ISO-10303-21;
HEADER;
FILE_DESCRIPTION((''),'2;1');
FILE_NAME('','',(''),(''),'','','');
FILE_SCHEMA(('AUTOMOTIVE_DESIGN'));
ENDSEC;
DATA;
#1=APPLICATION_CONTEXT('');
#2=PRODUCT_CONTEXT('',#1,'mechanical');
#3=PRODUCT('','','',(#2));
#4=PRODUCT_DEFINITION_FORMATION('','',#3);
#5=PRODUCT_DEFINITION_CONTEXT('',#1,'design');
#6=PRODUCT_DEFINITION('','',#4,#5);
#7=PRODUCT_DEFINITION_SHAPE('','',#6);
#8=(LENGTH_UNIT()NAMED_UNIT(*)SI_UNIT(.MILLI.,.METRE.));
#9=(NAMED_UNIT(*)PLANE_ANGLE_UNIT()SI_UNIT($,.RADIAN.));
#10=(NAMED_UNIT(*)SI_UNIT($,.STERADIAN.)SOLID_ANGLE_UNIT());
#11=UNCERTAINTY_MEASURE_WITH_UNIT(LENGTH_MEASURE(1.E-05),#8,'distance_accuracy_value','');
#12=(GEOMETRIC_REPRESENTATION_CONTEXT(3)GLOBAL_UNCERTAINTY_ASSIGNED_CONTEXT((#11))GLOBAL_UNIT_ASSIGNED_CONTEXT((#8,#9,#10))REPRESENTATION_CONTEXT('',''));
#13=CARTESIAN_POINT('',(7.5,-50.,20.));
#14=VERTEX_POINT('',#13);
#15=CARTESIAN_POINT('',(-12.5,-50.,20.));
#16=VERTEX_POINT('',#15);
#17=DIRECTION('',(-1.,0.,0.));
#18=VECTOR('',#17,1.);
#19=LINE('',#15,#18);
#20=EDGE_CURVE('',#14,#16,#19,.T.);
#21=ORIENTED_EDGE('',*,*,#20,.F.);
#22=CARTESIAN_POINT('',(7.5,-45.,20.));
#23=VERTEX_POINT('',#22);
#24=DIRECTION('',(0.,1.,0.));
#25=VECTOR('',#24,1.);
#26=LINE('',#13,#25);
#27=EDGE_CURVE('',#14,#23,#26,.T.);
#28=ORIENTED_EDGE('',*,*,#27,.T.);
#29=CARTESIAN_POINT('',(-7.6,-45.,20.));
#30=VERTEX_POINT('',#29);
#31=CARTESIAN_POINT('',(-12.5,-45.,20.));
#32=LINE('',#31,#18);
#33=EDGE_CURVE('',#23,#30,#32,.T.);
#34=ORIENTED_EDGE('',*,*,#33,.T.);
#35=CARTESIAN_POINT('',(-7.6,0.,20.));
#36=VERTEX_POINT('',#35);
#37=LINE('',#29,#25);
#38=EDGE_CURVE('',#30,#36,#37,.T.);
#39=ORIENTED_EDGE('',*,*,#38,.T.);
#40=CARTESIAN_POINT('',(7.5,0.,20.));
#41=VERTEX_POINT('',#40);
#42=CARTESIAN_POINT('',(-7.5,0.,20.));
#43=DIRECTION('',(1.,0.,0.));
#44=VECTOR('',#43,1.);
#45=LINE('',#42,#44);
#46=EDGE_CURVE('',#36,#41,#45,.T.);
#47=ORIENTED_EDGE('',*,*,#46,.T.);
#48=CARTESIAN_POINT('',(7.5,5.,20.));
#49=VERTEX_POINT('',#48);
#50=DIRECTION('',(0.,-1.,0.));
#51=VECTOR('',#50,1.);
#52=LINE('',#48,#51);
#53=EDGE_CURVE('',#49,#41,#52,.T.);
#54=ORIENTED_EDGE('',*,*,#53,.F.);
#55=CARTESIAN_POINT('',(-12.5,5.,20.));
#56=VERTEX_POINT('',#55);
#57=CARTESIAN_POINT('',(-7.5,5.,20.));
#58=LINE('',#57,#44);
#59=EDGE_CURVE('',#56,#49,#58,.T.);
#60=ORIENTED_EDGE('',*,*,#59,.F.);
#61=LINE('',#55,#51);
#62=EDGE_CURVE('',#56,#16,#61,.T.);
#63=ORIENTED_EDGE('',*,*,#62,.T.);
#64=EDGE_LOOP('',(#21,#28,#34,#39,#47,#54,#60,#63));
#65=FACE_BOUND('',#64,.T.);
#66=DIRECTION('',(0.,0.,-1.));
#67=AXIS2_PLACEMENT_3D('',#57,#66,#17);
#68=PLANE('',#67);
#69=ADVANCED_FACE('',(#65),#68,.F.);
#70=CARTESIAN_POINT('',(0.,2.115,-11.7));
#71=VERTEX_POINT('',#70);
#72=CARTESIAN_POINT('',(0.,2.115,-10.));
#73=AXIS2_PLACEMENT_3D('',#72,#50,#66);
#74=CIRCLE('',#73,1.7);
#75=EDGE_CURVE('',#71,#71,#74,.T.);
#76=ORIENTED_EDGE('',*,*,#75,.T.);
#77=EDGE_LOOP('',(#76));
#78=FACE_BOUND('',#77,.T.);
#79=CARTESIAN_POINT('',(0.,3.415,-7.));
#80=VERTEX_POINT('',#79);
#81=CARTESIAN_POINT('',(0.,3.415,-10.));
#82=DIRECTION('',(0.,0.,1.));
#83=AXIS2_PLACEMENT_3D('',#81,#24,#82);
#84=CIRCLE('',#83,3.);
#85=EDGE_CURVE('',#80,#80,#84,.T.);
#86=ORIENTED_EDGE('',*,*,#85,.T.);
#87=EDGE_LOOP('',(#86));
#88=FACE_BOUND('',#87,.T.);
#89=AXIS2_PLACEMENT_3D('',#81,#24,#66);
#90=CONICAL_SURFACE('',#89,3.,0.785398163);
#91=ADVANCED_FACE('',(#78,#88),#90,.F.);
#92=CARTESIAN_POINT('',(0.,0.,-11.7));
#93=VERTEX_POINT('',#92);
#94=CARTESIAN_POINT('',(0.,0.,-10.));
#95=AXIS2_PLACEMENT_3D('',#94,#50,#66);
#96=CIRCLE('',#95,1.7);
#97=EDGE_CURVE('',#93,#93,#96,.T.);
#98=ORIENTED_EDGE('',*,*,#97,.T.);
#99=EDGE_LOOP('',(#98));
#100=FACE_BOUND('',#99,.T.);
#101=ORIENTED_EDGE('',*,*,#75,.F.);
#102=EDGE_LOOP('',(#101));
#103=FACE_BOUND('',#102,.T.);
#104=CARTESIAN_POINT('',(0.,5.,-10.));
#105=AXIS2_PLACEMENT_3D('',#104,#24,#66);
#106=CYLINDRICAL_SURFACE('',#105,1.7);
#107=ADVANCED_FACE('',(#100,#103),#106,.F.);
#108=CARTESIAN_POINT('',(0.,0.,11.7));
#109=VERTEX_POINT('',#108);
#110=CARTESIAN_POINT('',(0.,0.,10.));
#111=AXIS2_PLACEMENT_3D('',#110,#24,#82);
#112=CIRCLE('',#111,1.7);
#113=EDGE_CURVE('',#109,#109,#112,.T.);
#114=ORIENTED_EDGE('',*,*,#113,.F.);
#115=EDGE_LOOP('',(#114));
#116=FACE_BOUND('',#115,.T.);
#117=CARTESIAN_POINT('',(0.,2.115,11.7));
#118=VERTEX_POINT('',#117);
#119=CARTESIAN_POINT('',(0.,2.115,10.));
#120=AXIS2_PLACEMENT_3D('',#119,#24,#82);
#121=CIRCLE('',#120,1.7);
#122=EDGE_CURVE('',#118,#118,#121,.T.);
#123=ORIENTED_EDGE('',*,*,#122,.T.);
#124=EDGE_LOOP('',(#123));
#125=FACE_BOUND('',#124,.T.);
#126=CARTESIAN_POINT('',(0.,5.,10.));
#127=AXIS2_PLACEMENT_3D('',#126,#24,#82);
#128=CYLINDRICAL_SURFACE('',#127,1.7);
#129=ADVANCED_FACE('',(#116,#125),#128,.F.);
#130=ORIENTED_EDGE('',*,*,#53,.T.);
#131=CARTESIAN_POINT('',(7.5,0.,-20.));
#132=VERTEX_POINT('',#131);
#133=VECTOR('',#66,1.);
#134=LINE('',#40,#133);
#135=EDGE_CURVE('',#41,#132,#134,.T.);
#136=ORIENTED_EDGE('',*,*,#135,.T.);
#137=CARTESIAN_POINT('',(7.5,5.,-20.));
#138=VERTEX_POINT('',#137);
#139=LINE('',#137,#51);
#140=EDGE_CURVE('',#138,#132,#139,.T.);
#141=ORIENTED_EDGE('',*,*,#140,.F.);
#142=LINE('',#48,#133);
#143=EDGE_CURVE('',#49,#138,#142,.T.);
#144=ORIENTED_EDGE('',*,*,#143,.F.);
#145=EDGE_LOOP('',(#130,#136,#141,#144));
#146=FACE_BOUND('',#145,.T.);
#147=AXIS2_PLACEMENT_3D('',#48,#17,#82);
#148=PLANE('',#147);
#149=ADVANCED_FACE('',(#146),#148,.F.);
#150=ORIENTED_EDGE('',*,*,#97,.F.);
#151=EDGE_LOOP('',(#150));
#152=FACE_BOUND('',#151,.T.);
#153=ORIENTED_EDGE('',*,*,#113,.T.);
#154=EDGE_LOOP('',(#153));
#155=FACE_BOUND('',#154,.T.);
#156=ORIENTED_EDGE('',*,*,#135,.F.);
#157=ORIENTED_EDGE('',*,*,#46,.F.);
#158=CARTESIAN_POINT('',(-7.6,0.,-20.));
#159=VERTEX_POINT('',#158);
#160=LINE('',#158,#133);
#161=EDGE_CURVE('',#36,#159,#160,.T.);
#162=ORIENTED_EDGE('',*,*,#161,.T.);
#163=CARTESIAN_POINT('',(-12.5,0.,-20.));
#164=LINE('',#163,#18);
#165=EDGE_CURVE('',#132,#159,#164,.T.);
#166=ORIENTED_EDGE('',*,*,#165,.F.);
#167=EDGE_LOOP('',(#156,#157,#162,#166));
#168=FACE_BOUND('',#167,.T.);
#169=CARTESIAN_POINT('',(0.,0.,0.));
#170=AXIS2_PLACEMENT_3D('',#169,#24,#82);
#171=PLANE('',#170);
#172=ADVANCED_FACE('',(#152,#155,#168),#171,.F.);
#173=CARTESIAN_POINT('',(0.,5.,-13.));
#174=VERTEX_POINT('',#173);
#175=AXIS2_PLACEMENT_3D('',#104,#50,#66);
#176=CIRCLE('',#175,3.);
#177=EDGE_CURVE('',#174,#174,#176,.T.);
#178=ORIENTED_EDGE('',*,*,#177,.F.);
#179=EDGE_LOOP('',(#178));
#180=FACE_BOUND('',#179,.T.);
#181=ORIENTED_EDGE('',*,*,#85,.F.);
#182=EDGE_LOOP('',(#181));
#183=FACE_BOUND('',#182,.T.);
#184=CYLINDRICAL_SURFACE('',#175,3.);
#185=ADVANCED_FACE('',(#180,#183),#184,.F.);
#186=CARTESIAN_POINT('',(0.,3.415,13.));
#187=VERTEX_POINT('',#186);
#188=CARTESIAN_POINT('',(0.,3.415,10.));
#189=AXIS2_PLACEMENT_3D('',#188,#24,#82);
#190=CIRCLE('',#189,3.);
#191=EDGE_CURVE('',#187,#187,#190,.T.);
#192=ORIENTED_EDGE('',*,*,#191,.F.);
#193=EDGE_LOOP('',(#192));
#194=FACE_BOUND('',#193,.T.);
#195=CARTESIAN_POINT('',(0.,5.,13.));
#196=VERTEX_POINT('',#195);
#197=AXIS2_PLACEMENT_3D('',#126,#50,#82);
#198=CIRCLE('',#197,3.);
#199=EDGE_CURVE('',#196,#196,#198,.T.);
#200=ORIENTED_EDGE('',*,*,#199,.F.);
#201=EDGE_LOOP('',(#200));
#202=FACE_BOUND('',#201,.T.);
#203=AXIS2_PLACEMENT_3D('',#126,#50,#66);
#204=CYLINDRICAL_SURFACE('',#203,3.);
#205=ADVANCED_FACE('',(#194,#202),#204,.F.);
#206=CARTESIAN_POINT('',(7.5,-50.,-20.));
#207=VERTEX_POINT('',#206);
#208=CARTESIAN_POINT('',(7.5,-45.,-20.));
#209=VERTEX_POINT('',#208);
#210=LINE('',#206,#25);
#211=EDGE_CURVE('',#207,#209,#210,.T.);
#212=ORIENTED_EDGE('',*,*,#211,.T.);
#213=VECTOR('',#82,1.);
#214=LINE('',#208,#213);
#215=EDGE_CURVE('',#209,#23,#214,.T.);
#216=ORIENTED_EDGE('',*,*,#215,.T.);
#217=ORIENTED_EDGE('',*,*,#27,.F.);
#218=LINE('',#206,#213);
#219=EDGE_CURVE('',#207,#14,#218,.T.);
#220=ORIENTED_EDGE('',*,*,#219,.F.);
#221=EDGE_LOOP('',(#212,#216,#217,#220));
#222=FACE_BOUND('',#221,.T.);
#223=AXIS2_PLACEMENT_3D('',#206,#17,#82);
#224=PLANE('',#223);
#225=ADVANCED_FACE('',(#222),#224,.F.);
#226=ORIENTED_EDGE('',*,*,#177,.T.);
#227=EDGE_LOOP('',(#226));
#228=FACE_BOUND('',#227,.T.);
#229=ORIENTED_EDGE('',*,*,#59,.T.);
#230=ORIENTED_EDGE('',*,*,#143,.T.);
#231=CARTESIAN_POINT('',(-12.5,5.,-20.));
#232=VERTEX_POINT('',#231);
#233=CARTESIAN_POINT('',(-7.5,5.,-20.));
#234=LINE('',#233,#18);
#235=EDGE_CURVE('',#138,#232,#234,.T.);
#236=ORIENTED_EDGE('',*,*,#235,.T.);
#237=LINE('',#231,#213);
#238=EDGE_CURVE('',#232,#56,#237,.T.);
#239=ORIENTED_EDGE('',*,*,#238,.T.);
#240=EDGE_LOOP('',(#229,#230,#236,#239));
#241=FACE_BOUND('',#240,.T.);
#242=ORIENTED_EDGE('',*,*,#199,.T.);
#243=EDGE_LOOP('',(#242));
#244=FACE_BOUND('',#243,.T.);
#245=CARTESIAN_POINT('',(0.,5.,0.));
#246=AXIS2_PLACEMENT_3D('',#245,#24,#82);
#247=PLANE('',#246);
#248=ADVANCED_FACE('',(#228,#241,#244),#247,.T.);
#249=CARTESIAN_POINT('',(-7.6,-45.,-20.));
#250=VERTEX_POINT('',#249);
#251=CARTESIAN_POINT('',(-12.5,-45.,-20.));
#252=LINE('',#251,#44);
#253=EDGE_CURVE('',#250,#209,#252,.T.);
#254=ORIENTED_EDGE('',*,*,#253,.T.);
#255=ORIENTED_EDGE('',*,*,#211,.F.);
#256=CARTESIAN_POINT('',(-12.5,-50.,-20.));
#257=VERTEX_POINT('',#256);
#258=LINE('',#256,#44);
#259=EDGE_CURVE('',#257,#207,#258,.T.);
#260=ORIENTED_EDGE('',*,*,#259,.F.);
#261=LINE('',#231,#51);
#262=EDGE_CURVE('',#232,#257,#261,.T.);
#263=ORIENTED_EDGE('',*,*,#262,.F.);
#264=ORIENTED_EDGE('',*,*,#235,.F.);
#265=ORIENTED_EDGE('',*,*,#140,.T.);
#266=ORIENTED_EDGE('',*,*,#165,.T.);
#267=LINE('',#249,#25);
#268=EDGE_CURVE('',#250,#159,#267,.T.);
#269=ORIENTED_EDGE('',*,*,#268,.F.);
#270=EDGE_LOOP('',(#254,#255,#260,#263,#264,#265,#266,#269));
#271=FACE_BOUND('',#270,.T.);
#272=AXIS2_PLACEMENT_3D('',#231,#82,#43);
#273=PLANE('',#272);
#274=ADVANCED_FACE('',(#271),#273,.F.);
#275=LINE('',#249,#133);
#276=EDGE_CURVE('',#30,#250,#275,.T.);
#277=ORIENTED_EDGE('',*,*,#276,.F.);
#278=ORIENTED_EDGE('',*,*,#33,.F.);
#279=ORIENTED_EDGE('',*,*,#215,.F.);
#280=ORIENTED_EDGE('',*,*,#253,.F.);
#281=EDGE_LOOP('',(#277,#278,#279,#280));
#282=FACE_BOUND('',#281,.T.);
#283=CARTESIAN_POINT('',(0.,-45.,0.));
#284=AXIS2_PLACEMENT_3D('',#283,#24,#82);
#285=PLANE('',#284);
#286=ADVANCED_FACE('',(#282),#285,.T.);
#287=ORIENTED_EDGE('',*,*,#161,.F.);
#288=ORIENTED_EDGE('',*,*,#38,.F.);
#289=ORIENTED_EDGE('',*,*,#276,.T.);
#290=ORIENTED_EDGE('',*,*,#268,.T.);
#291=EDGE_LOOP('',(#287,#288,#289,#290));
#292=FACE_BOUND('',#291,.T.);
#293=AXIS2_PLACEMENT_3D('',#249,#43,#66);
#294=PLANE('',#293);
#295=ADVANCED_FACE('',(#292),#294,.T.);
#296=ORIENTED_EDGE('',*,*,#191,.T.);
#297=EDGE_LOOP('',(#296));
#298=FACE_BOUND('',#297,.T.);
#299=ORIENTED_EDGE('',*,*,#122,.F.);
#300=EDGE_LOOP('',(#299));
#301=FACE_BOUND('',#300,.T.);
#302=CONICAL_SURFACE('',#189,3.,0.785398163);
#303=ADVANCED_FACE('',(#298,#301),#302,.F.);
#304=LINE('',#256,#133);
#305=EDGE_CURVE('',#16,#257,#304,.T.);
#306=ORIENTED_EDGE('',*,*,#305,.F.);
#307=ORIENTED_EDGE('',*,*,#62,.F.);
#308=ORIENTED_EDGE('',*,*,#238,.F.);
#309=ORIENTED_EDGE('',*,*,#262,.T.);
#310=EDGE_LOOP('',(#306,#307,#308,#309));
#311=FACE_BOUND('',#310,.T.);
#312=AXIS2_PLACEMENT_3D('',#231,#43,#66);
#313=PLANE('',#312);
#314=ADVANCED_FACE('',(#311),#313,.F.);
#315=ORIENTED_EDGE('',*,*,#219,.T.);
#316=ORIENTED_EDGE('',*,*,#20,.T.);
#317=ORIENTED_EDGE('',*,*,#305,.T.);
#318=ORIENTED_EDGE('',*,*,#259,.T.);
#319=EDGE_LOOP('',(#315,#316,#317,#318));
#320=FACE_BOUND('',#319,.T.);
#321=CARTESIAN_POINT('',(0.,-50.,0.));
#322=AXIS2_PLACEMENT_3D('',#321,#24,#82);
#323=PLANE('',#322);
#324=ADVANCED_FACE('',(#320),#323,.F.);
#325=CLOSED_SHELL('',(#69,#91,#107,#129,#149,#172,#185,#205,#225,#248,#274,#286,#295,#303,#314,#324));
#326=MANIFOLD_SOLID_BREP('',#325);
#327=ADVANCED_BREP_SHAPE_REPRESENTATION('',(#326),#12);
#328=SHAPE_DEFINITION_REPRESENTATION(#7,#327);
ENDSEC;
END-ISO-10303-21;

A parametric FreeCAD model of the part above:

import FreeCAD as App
import Part
import Sketcher
Q = App.Units.Quantity

doc = App.newDocument("Part")
body = doc.addObject("PartDesign::Body", "Body")

sketch1 = body.newObject("Sketcher::SketchObject", "Sketch")
sketch1.AttachmentSupport = (doc.getObject("XZ_Plane"), [""])
sketch1.MapMode = "FlatFace"
sketch1.addGeometry([
    Part.LineSegment(App.Vector(8, 20, 0), App.Vector(8, -20, 0)),
    Part.LineSegment(App.Vector(8, -20, 0), App.Vector(-12, -20, 0)),
    Part.LineSegment(App.Vector(-12, -20, 0), App.Vector(-12, 20, 0)),
    Part.LineSegment(App.Vector(-12, 20, 0), App.Vector(8, 20, 0)),
], False)
sketch1.addConstraint([
    Sketcher.Constraint("Coincident", 0, 2, 1, 1),
    Sketcher.Constraint("Coincident", 1, 2, 2, 1),
    Sketcher.Constraint("Coincident", 2, 2, 3, 1),
    Sketcher.Constraint("Coincident", 3, 2, 0, 1),
    Sketcher.Constraint("Vertical", 0),
    Sketcher.Constraint("Horizontal", 1),
    Sketcher.Constraint("Vertical", 2),
    Sketcher.Constraint("Horizontal", 3),
    Sketcher.Constraint("DistanceX", 1, 2, 1, 1, 20.0),
    Sketcher.Constraint("DistanceY", 0, 2, 0, 1, 40.0),
    Sketcher.Constraint("DistanceY", 0, 2, -1, 1, 20.0),
    Sketcher.Constraint("DistanceX", -1, 1, 0, 2, 7.5),
])
pad1 = body.newObject("PartDesign::Pad", "Pad")
pad1.Profile = sketch1
pad1.Length = 5
pad1.Reversed = True

sketch2 = body.newObject("Sketcher::SketchObject", "Sketch001")
sketch2.AttachmentSupport = (doc.getObject("XZ_Plane"), [""])
sketch2.MapMode = "FlatFace"
sketch2.addGeometry([
    Part.LineSegment(App.Vector(-12.5, -20, 0), App.Vector(-12.5, 20, 0)),
    Part.LineSegment(App.Vector(-12.5, 20, 0), App.Vector(-7.6, 20, 0)),
    Part.LineSegment(App.Vector(-7.6, 20, 0), App.Vector(-7.6, -20, 0)),
    Part.LineSegment(App.Vector(-7.6, -20, 0), App.Vector(-12.5, -20, 0)),
], False)
sketch2.addConstraint([
    Sketcher.Constraint("Coincident", 0, 2, 1, 1),
    Sketcher.Constraint("Coincident", 1, 2, 2, 1),
    Sketcher.Constraint("Coincident", 2, 2, 3, 1),
    Sketcher.Constraint("Coincident", 3, 2, 0, 1),
    Sketcher.Constraint("Vertical", 0),
    Sketcher.Constraint("Horizontal", 1),
    Sketcher.Constraint("Vertical", 2),
    Sketcher.Constraint("Horizontal", 3),
    Sketcher.Constraint("DistanceY", 0, 1, 0, 2, 40.0),
    Sketcher.Constraint("DistanceX", 1, 1, 1, 2, 4.9),
    Sketcher.Constraint("DistanceY", -1, 1, 0, 2, 20.0),
    Sketcher.Constraint("DistanceX", 0, 2, -1, 1, 12.5),
])
pad2 = body.newObject("PartDesign::Pad", "Pad001")
pad2.Profile = sketch2
pad2.Length = 45

sketch3 = body.newObject("Sketcher::SketchObject", "Sketch002")
sketch3.AttachmentSupport = (doc.getObject("XZ_Plane"), [""])
sketch3.MapMode = "FlatFace"
sketch3.AttachmentOffset = App.Placement(App.Vector(0, 0, 45), App.Rotation())
sketch3.addGeometry([
    Part.LineSegment(App.Vector(-12, 20, 0), App.Vector(-12, -20, 0)),
    Part.LineSegment(App.Vector(-12, -20, 0), App.Vector(8, -20, 0)),
    Part.LineSegment(App.Vector(8, -20, 0), App.Vector(8, 20, 0)),
    Part.LineSegment(App.Vector(8, 20, 0), App.Vector(-12, 20, 0)),
], False)
sketch3.addConstraint([
    Sketcher.Constraint("Coincident", 0, 2, 1, 1),
    Sketcher.Constraint("Coincident", 1, 2, 2, 1),
    Sketcher.Constraint("Coincident", 2, 2, 3, 1),
    Sketcher.Constraint("Coincident", 3, 2, 0, 1),
    Sketcher.Constraint("Vertical", 0),
    Sketcher.Constraint("Horizontal", 1),
    Sketcher.Constraint("Vertical", 2),
    Sketcher.Constraint("Horizontal", 3),
    Sketcher.Constraint("DistanceX", 1, 1, 1, 2, 20.0),
    Sketcher.Constraint("DistanceY", 0, 2, 0, 1, 40.0),
    Sketcher.Constraint("DistanceY", 0, 2, -1, 1, 20.0),
    Sketcher.Constraint("DistanceX", 0, 2, -1, 1, 12.5),
])
pad3 = body.newObject("PartDesign::Pad", "Pad002")
pad3.Profile = sketch3
pad3.Length = 5

sketch4 = body.newObject("Sketcher::SketchObject", "Sketch003")
sketch4.AttachmentSupport = (doc.getObject("XZ_Plane"), [""])
sketch4.MapMode = "FlatFace"
sketch4.addGeometry([
    Part.Circle(App.Vector(0, -10, 0), App.Vector(0, 0, 1), 3),
    Part.Circle(App.Vector(0, 10, 0), App.Vector(0, 0, 1), 3),
], False)
sketch4.addConstraint([
    Sketcher.Constraint("Equal", 0, 1),
    Sketcher.Constraint("Symmetric", 0, 3, 1, 3, -1, 1),
    Sketcher.Constraint("PointOnObject", 0, 3, -2),
    Sketcher.Constraint("Diameter", 0, 6.0),
    Sketcher.Constraint("DistanceY", 0, 3, -1, 1, 10.0),
])
pocket1 = body.newObject("PartDesign::Pocket", "Pocket")
pocket1.Profile = sketch4
pocket1.Length = 5

sketch5 = body.newObject("Sketcher::SketchObject", "Sketch004")
sketch5.AttachmentSupport = (doc.getObject("YZ_Plane"), [""])
sketch5.MapMode = "FlatFace"
sketch5.addGeometry([
    Part.LineSegment(App.Vector(3.4, 13, 0), App.Vector(2.1, 11.7, 0)),
    Part.LineSegment(App.Vector(2.1, 11.7, 0), App.Vector(0, 11.7, 0)),
    Part.LineSegment(App.Vector(0, 11.7, 0), App.Vector(0, 13, 0)),
    Part.LineSegment(App.Vector(0, 13, 0), App.Vector(3.4, 13, 0)),
], False)
sketch5.addGeometry(Part.LineSegment(App.Vector(3.4, 10, 0), App.Vector(0, 10, 0)), True)
sketch5.addConstraint([
    Sketcher.Constraint("Coincident", 0, 2, 1, 1),
    Sketcher.Constraint("Coincident", 1, 2, 2, 1),
    Sketcher.Constraint("Coincident", 2, 2, 3, 1),
    Sketcher.Constraint("Coincident", 3, 2, 0, 1),
    Sketcher.Constraint("Horizontal", 1),
    Sketcher.Constraint("Vertical", 2),
    Sketcher.Constraint("Horizontal", 3),
    Sketcher.Constraint("Horizontal", 4),
    Sketcher.Constraint("PointOnObject", 1, 2, -2),
    Sketcher.Constraint("PointOnObject", 4, 2, -2),
    Sketcher.Constraint("Vertical", 3, 2, 4, 1),
    Sketcher.Constraint("Angle", 0, Q("-135 deg")),
    Sketcher.Constraint("DistanceY", 2, 1, 2, 2, 1.3),
    Sketcher.Constraint("DistanceY", -1, 1, 2, 2, 13.0),
    Sketcher.Constraint("DistanceY", -1, 1, 4, 1, 10.0),
    Sketcher.Constraint("DistanceX", 1, 2, 1, 1, 2.115),
])
revolution = body.newObject("PartDesign::Revolution", "Revolution")
revolution.Profile = sketch5
revolution.ReferenceAxis = (sketch5, ["Axis0"])
revolution.Angle = 360
doc.recompute()

mirrored = body.newObject("PartDesign::Mirrored", "Mirrored")
mirrored.Originals = [revolution]
mirrored.MirrorPlane = (doc.getObject("XY_Plane"), [""])
body.Tip = mirrored

doc.recompute()
